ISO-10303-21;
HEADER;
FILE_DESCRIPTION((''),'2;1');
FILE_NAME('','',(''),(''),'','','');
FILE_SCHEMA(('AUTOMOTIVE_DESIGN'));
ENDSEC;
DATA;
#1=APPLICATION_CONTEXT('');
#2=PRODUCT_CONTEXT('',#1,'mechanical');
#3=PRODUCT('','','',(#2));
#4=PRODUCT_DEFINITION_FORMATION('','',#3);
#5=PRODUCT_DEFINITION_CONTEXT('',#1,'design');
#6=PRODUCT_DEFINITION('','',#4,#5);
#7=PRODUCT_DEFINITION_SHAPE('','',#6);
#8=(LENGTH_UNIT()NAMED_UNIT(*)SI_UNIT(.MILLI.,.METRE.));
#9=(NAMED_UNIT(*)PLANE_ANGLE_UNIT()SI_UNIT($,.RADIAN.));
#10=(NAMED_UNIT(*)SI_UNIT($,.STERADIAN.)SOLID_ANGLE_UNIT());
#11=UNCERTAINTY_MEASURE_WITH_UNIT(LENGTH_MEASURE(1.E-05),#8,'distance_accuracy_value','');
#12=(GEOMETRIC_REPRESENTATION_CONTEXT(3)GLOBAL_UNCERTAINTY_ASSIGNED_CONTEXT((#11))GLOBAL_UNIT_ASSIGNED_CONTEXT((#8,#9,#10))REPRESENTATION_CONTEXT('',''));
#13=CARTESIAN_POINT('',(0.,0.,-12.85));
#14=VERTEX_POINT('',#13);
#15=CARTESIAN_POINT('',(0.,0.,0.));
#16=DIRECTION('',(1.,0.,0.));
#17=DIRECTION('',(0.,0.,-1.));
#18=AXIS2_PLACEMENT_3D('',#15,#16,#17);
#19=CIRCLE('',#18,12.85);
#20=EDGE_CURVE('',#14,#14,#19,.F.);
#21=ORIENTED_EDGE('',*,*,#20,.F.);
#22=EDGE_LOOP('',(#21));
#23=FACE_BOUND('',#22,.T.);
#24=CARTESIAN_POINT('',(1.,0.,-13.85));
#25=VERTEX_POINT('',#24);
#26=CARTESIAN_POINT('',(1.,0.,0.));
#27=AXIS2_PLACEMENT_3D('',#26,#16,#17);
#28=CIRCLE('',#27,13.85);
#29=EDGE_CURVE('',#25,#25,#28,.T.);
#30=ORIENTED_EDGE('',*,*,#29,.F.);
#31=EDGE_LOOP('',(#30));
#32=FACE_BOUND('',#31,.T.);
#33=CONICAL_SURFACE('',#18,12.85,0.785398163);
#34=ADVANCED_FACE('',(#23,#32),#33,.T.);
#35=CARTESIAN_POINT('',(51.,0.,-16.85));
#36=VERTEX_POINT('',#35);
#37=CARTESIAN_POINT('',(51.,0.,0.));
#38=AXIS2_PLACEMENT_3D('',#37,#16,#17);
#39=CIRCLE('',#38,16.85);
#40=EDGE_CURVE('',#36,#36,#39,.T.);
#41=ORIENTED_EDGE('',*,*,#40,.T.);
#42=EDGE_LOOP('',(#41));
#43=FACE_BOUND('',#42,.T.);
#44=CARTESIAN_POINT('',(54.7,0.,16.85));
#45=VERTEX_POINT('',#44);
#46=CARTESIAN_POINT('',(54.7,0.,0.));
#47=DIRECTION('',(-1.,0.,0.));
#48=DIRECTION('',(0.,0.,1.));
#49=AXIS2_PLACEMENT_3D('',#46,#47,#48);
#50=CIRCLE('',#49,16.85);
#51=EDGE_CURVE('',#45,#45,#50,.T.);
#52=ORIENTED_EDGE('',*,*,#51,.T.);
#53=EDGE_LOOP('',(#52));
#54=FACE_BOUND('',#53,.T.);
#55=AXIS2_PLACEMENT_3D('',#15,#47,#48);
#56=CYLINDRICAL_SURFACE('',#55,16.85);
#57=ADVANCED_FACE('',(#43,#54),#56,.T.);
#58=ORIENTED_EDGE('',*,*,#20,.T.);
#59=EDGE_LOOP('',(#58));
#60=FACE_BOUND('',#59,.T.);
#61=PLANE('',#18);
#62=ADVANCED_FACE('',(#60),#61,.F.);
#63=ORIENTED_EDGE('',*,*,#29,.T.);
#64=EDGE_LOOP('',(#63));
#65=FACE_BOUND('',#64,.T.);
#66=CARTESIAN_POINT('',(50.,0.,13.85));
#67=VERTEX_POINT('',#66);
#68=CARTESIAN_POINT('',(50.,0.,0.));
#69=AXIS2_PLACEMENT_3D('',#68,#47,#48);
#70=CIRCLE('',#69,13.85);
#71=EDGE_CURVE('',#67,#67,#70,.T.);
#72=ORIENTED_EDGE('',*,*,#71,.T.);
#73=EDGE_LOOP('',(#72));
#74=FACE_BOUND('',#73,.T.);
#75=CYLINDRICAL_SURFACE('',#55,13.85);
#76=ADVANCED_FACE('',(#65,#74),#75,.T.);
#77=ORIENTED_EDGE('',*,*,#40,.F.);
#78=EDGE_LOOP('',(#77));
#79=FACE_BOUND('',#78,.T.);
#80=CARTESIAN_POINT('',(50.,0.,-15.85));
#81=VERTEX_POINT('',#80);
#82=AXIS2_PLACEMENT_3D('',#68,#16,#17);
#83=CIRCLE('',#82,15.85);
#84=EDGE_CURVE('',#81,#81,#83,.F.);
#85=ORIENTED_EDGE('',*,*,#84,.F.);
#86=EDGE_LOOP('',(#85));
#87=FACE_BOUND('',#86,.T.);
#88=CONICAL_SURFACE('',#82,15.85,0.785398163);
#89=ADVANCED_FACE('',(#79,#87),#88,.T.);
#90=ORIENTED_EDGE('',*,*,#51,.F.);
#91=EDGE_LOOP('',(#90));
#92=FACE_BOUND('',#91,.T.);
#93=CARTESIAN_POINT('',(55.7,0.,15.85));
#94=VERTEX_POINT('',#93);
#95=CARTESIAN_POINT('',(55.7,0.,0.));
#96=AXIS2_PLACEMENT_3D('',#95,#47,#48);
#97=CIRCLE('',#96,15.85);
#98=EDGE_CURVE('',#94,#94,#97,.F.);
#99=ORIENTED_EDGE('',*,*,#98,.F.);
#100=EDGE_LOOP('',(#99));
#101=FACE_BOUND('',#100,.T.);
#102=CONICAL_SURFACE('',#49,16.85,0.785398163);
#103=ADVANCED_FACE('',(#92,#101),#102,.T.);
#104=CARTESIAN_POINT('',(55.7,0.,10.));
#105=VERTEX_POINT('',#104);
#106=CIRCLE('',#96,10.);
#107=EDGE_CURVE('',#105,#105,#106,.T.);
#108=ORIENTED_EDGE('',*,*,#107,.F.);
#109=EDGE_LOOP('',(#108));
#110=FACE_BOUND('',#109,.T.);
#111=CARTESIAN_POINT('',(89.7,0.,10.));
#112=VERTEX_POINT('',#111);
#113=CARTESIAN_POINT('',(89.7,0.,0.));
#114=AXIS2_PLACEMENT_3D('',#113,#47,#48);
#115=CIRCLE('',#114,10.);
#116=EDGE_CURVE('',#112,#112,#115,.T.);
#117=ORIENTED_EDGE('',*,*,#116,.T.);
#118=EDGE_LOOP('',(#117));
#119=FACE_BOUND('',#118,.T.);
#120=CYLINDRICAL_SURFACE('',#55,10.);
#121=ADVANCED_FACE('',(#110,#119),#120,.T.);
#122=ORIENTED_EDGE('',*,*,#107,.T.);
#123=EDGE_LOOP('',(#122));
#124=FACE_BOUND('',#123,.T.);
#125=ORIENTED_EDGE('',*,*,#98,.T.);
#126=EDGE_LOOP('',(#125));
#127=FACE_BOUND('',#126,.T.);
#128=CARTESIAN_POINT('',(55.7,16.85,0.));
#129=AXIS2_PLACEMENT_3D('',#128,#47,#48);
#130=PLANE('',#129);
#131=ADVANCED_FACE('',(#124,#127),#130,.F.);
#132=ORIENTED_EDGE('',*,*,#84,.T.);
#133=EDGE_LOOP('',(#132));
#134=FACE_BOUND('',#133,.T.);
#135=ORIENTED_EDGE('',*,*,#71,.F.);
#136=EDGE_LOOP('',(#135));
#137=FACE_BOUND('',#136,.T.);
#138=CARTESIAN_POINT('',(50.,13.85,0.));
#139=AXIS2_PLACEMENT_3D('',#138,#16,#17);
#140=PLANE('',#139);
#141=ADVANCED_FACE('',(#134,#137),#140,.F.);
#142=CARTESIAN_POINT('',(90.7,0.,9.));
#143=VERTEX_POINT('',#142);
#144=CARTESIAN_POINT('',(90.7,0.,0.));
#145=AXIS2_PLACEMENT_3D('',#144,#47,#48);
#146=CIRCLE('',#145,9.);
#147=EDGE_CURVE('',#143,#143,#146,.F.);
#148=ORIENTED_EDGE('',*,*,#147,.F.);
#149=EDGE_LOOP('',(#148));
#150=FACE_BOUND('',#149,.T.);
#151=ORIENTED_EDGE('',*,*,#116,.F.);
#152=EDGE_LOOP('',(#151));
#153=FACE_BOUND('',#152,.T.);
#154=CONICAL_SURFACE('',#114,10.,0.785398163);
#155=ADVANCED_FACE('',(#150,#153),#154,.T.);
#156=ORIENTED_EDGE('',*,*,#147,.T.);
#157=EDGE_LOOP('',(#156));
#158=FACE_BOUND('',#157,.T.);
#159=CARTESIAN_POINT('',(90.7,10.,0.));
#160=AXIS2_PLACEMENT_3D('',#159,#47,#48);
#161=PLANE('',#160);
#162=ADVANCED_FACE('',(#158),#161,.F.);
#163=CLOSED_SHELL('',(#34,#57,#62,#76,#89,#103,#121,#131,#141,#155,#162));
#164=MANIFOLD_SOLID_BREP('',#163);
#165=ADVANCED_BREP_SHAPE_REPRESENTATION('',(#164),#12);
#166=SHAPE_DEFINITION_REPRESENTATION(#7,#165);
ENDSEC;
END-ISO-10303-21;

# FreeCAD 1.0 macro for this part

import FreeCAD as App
import Part
import Sketcher
from FreeCAD import Vector
Q = App.Units.Quantity


def edges_at(feature, points):
    """Names of the edges that pass closest to the given points."""
    edges = feature.Shape.Edges
    near = lambda p: min(range(len(edges)), key=lambda i: edges[i].distToShape(Part.Vertex(*p))[0])
    return sorted({f"Edge{near(p) + 1}" for p in points})


def add_polygon(sketch, points):
    """Adds a closed chain of lines whose ends are joined by coincident constraints."""
    first, n = sketch.GeometryCount, len(points)
    for a, b in zip(points, points[1:] + points[:1]):
        sketch.addGeometry(Part.LineSegment(App.Vector(*a, 0), App.Vector(*b, 0)), False)
    for i in range(n):
        sketch.addConstraint(Sketcher.Constraint("Coincident", first + i, 2, first + (i + 1) % n, 1))

doc = App.newDocument("Part")
body = doc.addObject("PartDesign::Body", "Body")

# Sketch on XY plane
sketch1 = body.newObject("Sketcher::SketchObject", "Sketch")
sketch1.AttachmentSupport = (doc.getObject("XY_Plane"), [""])
sketch1.MapMode = "FlatFace"
add_polygon(sketch1, [(0, 13.85), (0, 0), (90.7, 0), (90.7, 10), (55.7, 10), (55.7, 16.85), (50, 16.85), (50, 13.85)])  # lines 0-7
sketch1.addConstraint(Sketcher.Constraint("Vertical", 0))
sketch1.addConstraint(Sketcher.Constraint("Horizontal", 1))
sketch1.addConstraint(Sketcher.Constraint("Vertical", 2))
sketch1.addConstraint(Sketcher.Constraint("Horizontal", 3))
sketch1.addConstraint(Sketcher.Constraint("Vertical", 4))
sketch1.addConstraint(Sketcher.Constraint("Horizontal", 5))
sketch1.addConstraint(Sketcher.Constraint("Vertical", 6))
sketch1.addConstraint(Sketcher.Constraint("Horizontal", 7))
sketch1.addConstraint(Sketcher.Constraint("Coincident", 0, 2, -1, 1))
sketch1.addConstraint(Sketcher.Constraint("DistanceX", 3, 2, 3, 1, Q("35 mm")))
sketch1.addConstraint(Sketcher.Constraint("DistanceX", 7, 2, 7, 1, Q("50 mm")))
sketch1.addConstraint(Sketcher.Constraint("DistanceY", 2, 1, 2, 2, Q("10 mm")))
sketch1.addConstraint(Sketcher.Constraint("DistanceY", 6, 2, 6, 1, Q("3 mm")))
sketch1.addConstraint(Sketcher.Constraint("DistanceX", 1, 1, 1, 2, Q("90.7 mm")))
sketch1.addConstraint(Sketcher.Constraint("DistanceY", 0, 2, 0, 1, Q("13.85 mm")))
revolution = body.newObject("PartDesign::Revolution", "Revolution")
revolution.Profile = sketch1
revolution.ReferenceAxis = (sketch1, ["H_Axis"])
revolution.Angle = 360
doc.recompute()

chamfer = body.newObject("PartDesign::Chamfer", "Chamfer")
chamfer.Base = (revolution, edges_at(revolution, [
    (90.7, 0, -10),
    (55.7, 0, -16.85),
    (50, 0, -16.85),
    (0, 0, -13.85),
]))
chamfer.Size = 1

doc.recompute()
